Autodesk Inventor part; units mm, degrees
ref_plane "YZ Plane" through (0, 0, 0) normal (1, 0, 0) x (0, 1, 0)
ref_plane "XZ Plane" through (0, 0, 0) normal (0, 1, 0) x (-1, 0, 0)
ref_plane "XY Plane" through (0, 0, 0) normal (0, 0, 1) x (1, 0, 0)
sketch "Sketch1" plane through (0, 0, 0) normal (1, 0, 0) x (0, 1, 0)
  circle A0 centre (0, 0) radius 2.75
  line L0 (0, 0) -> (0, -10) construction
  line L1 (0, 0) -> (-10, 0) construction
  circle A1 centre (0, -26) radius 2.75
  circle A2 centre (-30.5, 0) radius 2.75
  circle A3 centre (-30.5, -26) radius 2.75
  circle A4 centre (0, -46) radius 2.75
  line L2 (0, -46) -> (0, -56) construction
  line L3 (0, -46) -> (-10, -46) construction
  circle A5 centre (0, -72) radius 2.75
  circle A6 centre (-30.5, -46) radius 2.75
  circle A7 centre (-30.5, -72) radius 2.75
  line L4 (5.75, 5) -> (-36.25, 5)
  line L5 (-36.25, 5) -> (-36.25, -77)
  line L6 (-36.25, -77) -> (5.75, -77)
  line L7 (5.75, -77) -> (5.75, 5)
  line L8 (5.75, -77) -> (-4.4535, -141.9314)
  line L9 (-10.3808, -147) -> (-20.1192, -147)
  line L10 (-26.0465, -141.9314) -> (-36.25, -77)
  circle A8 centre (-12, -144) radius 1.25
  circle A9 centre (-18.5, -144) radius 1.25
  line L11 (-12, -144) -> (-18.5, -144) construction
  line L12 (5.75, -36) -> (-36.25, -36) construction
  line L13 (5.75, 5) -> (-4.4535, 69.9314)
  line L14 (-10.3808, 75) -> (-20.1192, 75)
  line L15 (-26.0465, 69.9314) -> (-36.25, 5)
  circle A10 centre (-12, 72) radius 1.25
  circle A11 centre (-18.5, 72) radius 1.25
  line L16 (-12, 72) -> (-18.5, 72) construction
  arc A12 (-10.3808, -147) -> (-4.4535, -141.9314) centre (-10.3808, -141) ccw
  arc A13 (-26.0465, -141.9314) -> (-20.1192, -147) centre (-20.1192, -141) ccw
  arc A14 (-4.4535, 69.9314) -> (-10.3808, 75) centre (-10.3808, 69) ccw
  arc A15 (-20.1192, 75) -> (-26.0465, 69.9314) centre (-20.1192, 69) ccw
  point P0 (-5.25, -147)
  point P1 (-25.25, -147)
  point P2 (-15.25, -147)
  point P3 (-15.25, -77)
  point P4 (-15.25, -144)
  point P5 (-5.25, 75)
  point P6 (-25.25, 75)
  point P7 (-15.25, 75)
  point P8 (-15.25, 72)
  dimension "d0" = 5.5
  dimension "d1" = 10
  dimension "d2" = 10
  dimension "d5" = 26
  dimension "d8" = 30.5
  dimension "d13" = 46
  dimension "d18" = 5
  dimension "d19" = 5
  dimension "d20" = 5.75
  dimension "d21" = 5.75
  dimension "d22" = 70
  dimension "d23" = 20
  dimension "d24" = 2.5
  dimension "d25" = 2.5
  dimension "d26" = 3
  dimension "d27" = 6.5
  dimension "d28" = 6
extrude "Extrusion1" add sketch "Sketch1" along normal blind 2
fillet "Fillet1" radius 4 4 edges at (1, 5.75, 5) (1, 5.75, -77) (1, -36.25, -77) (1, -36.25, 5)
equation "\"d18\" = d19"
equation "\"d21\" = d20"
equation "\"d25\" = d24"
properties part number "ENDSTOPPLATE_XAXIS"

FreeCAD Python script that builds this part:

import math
import FreeCAD as App
import Part
import Sketcher
Q = App.Units.Quantity


def edges_at(feature, points):
    """Names of the edges that pass closest to the given points."""
    edges = feature.Shape.Edges
    near = lambda p: min(range(len(edges)), key=lambda i: edges[i].distToShape(Part.Vertex(*p))[0])
    return sorted({f"Edge{near(p) + 1}" for p in points})

doc = App.newDocument("Part")
body = doc.addObject("PartDesign::Body", "Body")

sketch1 = doc.addObject("Sketcher::SketchObject", "Sketch")
body.addObject(sketch1)
sketch1.AttachmentSupport = (doc.YZ_Plane, [""])
sketch1.MapMode = "FlatFace"
sketch1.addGeometry([
    Part.LineSegment(App.Vector(5.75, -77, 0), App.Vector(5.75, 5, 0)),
    Part.LineSegment(App.Vector(5.75, 5, 0), App.Vector(-4.4535, 69.9314, 0)),
    Part.ArcOfCircle(Part.Circle(App.Vector(-10.3808, 69, 0), App.Vector(0, 0, 1), 6.000033), math.radians(8.93028), math.radians(90)),
    Part.LineSegment(App.Vector(-10.3808, 75, 0), App.Vector(-20.1192, 75, 0)),
    Part.ArcOfCircle(Part.Circle(App.Vector(-20.1192, 69, 0), App.Vector(0, 0, 1), 6), math.radians(90), math.radians(171.06972)),
    Part.LineSegment(App.Vector(-26.0465, 69.9314, 0), App.Vector(-36.25, 5, 0)),
    Part.LineSegment(App.Vector(-36.25, 5, 0), App.Vector(-36.25, -77, 0)),
    Part.LineSegment(App.Vector(-36.25, -77, 0), App.Vector(-26.0465, -141.9314, 0)),
    Part.ArcOfCircle(Part.Circle(App.Vector(-20.1192, -141, 0), App.Vector(0, 0, 1), 6.000033), math.radians(-171.06972), math.radians(-90)),
    Part.LineSegment(App.Vector(-20.1192, -147, 0), App.Vector(-10.3808, -147, 0)),
    Part.ArcOfCircle(Part.Circle(App.Vector(-10.3808, -141, 0), App.Vector(0, 0, 1), 6), math.radians(-90), math.radians(-8.93028)),
    Part.LineSegment(App.Vector(-4.4535, -141.9314, 0), App.Vector(5.75, -77, 0)),
    Part.Circle(App.Vector(-30.5, -72, 0), App.Vector(0, 0, 1), 2.75),
    Part.Circle(App.Vector(-30.5, -46, 0), App.Vector(0, 0, 1), 2.75),
    Part.Circle(App.Vector(0, -72, 0), App.Vector(0, 0, 1), 2.75),
    Part.Circle(App.Vector(0, -46, 0), App.Vector(0, 0, 1), 2.75),
    Part.Circle(App.Vector(-30.5, -26, 0), App.Vector(0, 0, 1), 2.75),
    Part.Circle(App.Vector(-30.5, 0, 0), App.Vector(0, 0, 1), 2.75),
    Part.Circle(App.Vector(0, -26, 0), App.Vector(0, 0, 1), 2.75),
    Part.Circle(App.Vector(0, 0, 0), App.Vector(0, 0, 1), 2.75),
    Part.Circle(App.Vector(-12, -144, 0), App.Vector(0, 0, 1), 1.25),
    Part.Circle(App.Vector(-18.5, -144, 0), App.Vector(0, 0, 1), 1.25),
    Part.Circle(App.Vector(-12, 72, 0), App.Vector(0, 0, 1), 1.25),
    Part.Circle(App.Vector(-18.5, 72, 0), App.Vector(0, 0, 1), 1.25),
], False)
sketch1.addConstraint([
    Sketcher.Constraint("Coincident", 0, 2, 1, 1),
    Sketcher.Constraint("Tangent", 1, 2, 2, 1),
    Sketcher.Constraint("Tangent", 2, 2, 3, 1),
    Sketcher.Constraint("Tangent", 3, 2, 4, 1),
    Sketcher.Constraint("Tangent", 4, 2, 5, 1),
    Sketcher.Constraint("Coincident", 5, 2, 6, 1),
    Sketcher.Constraint("Coincident", 6, 2, 7, 1),
    Sketcher.Constraint("Tangent", 7, 2, 8, 1),
    Sketcher.Constraint("Tangent", 8, 2, 9, 1),
    Sketcher.Constraint("Tangent", 9, 2, 10, 1),
    Sketcher.Constraint("Tangent", 10, 2, 11, 1),
    Sketcher.Constraint("Coincident", 11, 2, 0, 1),
    Sketcher.Constraint("Vertical", 0),
    Sketcher.Constraint("Horizontal", 3),
    Sketcher.Constraint("Vertical", 6),
    Sketcher.Constraint("Horizontal", 9),
    Sketcher.Constraint("Coincident", 19, 3, -1, 1),
    Sketcher.Constraint("Equal", 2, 4),
    Sketcher.Constraint("Equal", 4, 8),
    Sketcher.Constraint("Equal", 8, 10),
    Sketcher.Constraint("Equal", 12, 13),
    Sketcher.Constraint("Equal", 13, 14),
    Sketcher.Constraint("Equal", 14, 15),
    Sketcher.Constraint("Equal", 15, 16),
    Sketcher.Constraint("Equal", 16, 17),
    Sketcher.Constraint("Equal", 17, 18),
    Sketcher.Constraint("Equal", 18, 19),
    Sketcher.Constraint("Equal", 20, 21),
    Sketcher.Constraint("Equal", 21, 22),
    Sketcher.Constraint("Equal", 22, 23),
    Sketcher.Constraint("PointOnObject", 14, 3, -2),
    Sketcher.Constraint("PointOnObject", 15, 3, -2),
    Sketcher.Constraint("PointOnObject", 17, 3, -1),
    Sketcher.Constraint("PointOnObject", 18, 3, -2),
    Sketcher.Constraint("Parallel", 1, 7),
    Sketcher.Constraint("Parallel", 5, 11),
    Sketcher.Constraint("Horizontal", 12, 3, 14, 3),
    Sketcher.Constraint("Horizontal", 13, 3, 15, 3),
    Sketcher.Constraint("Horizontal", 16, 3, 18, 3),
    Sketcher.Constraint("Horizontal", 20, 3, 21, 3),
    Sketcher.Constraint("Horizontal", 22, 3, 23, 3),
    Sketcher.Constraint("Horizontal", 1, 2, 4, 2),
    Sketcher.Constraint("Horizontal", 0, 2, 5, 2),
    Sketcher.Constraint("Horizontal", 6, 2, 11, 2),
    Sketcher.Constraint("Vertical", 4, 3, 8, 3),
    Sketcher.Constraint("Vertical", 12, 3, 13, 3),
    Sketcher.Constraint("Vertical", 13, 3, 16, 3),
    Sketcher.Constraint("Vertical", 16, 3, 17, 3),
    Sketcher.Constraint("Vertical", 20, 3, 22, 3),
    Sketcher.Constraint("Vertical", 21, 3, 23, 3),
    Sketcher.Constraint("Radius", 2, 6.0),
    Sketcher.Constraint("Diameter", 12, 5.5),
    Sketcher.Constraint("Diameter", 20, 2.5),
    Sketcher.Constraint("DistanceY", 13, 3, -1, 1, 46.0),
    Sketcher.Constraint("DistanceY", 16, 3, -1, 1, 26.0),
    Sketcher.Constraint("DistanceY", -1, 1, 0, 2, 5.0),
    Sketcher.Constraint("DistanceY", 12, 3, 13, 3, 26.0),
    Sketcher.Constraint("DistanceY", 20, 3, 10, 3, 3.0),
    Sketcher.Constraint("DistanceY", 2, 3, 22, 3, 3.0),
    Sketcher.Constraint("DistanceY", 6, 2, 12, 3, 5.0),
    Sketcher.Constraint("DistanceX", 12, 3, -1, 1, 30.5),
    Sketcher.Constraint("DistanceX", 21, 3, 20, 3, 6.5),
    Sketcher.Constraint("DistanceX", -1, 1, 0, 2, 5.75),
    Sketcher.Constraint("DistanceX", 5, 2, 17, 3, 5.75),
    Sketcher.Constraint("DistanceY", -1, 1, 2, 3, 69.0),
    Sketcher.Constraint("DistanceX", 20, 3, -1, 1, 12.0),
    Sketcher.Constraint("Angle", 1, Q("98.9306 deg")),
])
pad1 = doc.addObject("PartDesign::Pad", "Pad")
body.addObject(pad1)
pad1.Profile = sketch1
pad1.Length = 2
doc.recompute()

fillet = doc.addObject("PartDesign::Fillet", "Fillet")
body.addObject(fillet)
fillet.Base = (pad1, edges_at(pad1, [
    (1, 5.75, 5),
    (1, 5.75, -77),
    (1, -36.25, -77),
    (1, -36.25, 5),
]))
fillet.Radius = 4

doc.recompute()
